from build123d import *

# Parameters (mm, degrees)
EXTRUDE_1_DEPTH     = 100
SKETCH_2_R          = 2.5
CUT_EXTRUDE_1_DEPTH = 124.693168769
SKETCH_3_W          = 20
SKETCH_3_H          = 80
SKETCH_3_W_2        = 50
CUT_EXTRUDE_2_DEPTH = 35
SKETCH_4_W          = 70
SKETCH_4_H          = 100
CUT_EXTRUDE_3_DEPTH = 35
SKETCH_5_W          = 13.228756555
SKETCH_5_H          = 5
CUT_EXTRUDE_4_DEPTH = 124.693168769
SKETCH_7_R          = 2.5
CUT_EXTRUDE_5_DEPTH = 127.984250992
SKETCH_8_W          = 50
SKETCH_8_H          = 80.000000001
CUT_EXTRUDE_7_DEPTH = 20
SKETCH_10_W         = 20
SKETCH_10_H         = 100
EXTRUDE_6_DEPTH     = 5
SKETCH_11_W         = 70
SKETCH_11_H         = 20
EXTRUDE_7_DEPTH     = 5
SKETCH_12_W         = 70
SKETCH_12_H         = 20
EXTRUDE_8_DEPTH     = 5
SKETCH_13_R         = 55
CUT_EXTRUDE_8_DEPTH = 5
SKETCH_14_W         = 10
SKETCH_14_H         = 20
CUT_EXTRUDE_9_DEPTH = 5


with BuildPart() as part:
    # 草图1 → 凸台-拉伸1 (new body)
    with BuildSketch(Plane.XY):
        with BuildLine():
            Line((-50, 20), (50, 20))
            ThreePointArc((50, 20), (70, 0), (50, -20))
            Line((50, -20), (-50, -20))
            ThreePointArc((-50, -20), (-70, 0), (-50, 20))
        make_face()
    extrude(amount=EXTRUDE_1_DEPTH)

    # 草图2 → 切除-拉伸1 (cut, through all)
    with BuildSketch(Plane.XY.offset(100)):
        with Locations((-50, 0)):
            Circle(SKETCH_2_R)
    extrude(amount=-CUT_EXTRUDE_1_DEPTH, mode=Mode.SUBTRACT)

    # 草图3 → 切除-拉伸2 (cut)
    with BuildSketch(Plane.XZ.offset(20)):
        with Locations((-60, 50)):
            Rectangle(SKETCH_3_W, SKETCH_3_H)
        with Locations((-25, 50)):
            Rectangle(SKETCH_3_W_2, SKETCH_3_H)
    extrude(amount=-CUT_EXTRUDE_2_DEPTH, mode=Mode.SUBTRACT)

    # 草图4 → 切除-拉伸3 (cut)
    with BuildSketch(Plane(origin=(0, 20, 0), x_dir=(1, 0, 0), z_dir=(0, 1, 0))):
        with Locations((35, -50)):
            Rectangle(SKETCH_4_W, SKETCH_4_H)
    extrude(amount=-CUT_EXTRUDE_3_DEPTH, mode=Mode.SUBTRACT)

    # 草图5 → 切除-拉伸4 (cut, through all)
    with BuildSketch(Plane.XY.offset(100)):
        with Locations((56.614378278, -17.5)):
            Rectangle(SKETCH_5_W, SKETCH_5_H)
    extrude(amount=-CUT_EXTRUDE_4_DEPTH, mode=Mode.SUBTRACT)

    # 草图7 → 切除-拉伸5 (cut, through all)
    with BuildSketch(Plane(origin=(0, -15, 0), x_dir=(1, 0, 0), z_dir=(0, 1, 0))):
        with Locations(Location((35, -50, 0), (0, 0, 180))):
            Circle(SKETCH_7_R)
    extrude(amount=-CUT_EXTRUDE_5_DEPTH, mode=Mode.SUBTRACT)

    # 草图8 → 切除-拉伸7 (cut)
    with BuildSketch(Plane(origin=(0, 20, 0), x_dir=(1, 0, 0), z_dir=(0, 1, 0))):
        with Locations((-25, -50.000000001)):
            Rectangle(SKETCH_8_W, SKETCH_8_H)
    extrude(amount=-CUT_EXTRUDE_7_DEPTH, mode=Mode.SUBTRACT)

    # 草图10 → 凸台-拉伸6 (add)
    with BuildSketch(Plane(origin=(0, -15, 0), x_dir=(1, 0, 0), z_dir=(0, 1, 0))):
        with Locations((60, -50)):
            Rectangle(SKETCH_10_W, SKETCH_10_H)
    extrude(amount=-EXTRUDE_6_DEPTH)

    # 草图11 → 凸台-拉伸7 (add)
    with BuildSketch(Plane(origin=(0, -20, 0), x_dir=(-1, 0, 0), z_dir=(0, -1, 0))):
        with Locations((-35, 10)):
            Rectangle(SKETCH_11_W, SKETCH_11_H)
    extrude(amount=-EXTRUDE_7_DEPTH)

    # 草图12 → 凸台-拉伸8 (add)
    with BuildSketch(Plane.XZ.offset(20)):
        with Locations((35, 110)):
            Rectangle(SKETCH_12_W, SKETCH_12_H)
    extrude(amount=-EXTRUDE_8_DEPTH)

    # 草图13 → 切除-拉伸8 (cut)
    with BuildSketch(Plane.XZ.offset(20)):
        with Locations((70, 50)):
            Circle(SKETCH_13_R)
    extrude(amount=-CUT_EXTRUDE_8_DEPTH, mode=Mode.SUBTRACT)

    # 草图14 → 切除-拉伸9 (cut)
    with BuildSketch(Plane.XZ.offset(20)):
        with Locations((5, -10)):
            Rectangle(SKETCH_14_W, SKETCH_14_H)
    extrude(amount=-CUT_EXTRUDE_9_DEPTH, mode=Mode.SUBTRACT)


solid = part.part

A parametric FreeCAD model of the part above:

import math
import FreeCAD as App
import Part
import Sketcher
Q = App.Units.Quantity

doc = App.newDocument("Part")
params = doc.addObject("Spreadsheet::Sheet", "Params")
for row, (alias, value) in enumerate([
    ("sketch1_radius", "20 mm"),
    ("sketch1_width", "100 mm"),
    ("pad1_length", "100 mm"),
    ("sketch2_diameter", "5 mm"),
    ("sketch3_width", "70 mm"),
    ("sketch3_height", "80 mm"),
    ("pocket2_length", "35 mm"),
    ("sketch4_width", "70 mm"),
    ("sketch4_height", "100 mm"),
    ("pocket3_length", "35 mm"),
    ("sketch5_height", "5 mm"),
    ("sketch6_diameter", "5 mm"),
    ("sketch7_width", "50 mm"),
    ("sketch7_height", "80 mm"),
    ("pocket6_length", "20 mm"),
    ("sketch8_width", "20 mm"),
    ("sketch8_height", "100 mm"),
    ("pad2_length", "5 mm"),
    ("sketch9_width", "70 mm"),
    ("sketch9_height", "20 mm"),
    ("pad3_length", "5 mm"),
    ("sketch10_width", "70 mm"),
    ("sketch10_height", "20 mm"),
    ("pad4_length", "5 mm"),
    ("sketch11_diameter", "110 mm"),
    ("pocket7_length", "5 mm"),
    ("sketch12_width", "10 mm"),
    ("sketch12_height", "20 mm"),
    ("pocket8_length", "5 mm"),
], start=1):
    params.set(f"A{row}", alias)
    params.set(f"B{row}", "=" + value)
    params.setAlias(f"B{row}", alias)

body = doc.addObject("PartDesign::Body", "Body")

sketch1 = body.newObject("Sketcher::SketchObject", "Sketch")
sketch1.AttachmentSupport = (doc.getObject("XY_Plane"), [""])
sketch1.MapMode = "FlatFace"
sketch1.addGeometry([
    Part.LineSegment(App.Vector(50, 20, 0), App.Vector(-50, 20, 0)),
    Part.ArcOfCircle(Part.Circle(App.Vector(-50, 0, 0), App.Vector(0, 0, 1), 20), math.radians(90), math.radians(270)),
    Part.LineSegment(App.Vector(-50, -20, 0), App.Vector(50, -20, 0)),
    Part.ArcOfCircle(Part.Circle(App.Vector(50, 0, 0), App.Vector(0, 0, 1), 20), math.radians(-90), math.radians(90)),
], False)
sketch1.addConstraint([
    Sketcher.Constraint("Tangent", 0, 2, 1, 1),
    Sketcher.Constraint("Tangent", 1, 2, 2, 1),
    Sketcher.Constraint("Tangent", 2, 2, 3, 1),
    Sketcher.Constraint("Tangent", 3, 2, 0, 1),
    Sketcher.Constraint("Horizontal", 0),
    Sketcher.Constraint("Horizontal", 2),
    Sketcher.Constraint("Symmetric", 1, 3, 3, 3, -1, 1),
    Sketcher.Constraint("Radius", 1, Q("20 mm")),
    Sketcher.Constraint("DistanceX", 0, 2, 0, 1, Q("100 mm")),
])
sketch1.setExpression("Constraints[7]", "Params.sketch1_radius")
sketch1.setExpression("Constraints[8]", "Params.sketch1_width")
pad1 = body.newObject("PartDesign::Pad", "Pad")
pad1.Profile = sketch1
pad1.setExpression("Length", "Params.pad1_length")

sketch2 = body.newObject("Sketcher::SketchObject", "Sketch001")
sketch2.AttachmentSupport = (doc.getObject("XY_Plane"), [""])
sketch2.MapMode = "FlatFace"
sketch2.AttachmentOffset = App.Placement(App.Vector(0, 0, 100), App.Rotation())
sketch2.addGeometry(Part.Circle(App.Vector(-50, 0, 0), App.Vector(0, 0, 1), 2.5), False)
sketch2.addConstraint([
    Sketcher.Constraint("PointOnObject", 0, 3, -1),
    Sketcher.Constraint("Diameter", 0, Q("5 mm")),
    Sketcher.Constraint("DistanceX", 0, 3, -1, 1, Q("50 mm")),
])
sketch2.setExpression("Constraints[1]", "Params.sketch2_diameter")
pocket1 = body.newObject("PartDesign::Pocket", "Pocket")
pocket1.Profile = sketch2
pocket1.Type = "ThroughAll"

sketch3 = body.newObject("Sketcher::SketchObject", "Sketch002")
sketch3.AttachmentSupport = (doc.getObject("XZ_Plane"), [""])
sketch3.MapMode = "FlatFace"
sketch3.AttachmentOffset = App.Placement(App.Vector(0, 0, 20), App.Rotation())
sketch3.addGeometry([
    Part.LineSegment(App.Vector(-70, 90, 0), App.Vector(-70, 10, 0)),
    Part.LineSegment(App.Vector(-70, 10, 0), App.Vector(0, 10, 0)),
    Part.LineSegment(App.Vector(0, 10, 0), App.Vector(0, 90, 0)),
    Part.LineSegment(App.Vector(0, 90, 0), App.Vector(-70, 90, 0)),
], False)
sketch3.addConstraint([
    Sketcher.Constraint("Coincident", 0, 2, 1, 1),
    Sketcher.Constraint("Coincident", 1, 2, 2, 1),
    Sketcher.Constraint("Coincident", 2, 2, 3, 1),
    Sketcher.Constraint("Coincident", 3, 2, 0, 1),
    Sketcher.Constraint("Vertical", 0),
    Sketcher.Constraint("Horizontal", 1),
    Sketcher.Constraint("Vertical", 2),
    Sketcher.Constraint("Horizontal", 3),
    Sketcher.Constraint("PointOnObject", 1, 2, -2),
    Sketcher.Constraint("DistanceX", 1, 1, 1, 2, Q("70 mm")),
    Sketcher.Constraint("DistanceY", 0, 2, 0, 1, Q("80 mm")),
    Sketcher.Constraint("DistanceY", -1, 1, 0, 2, Q("10 mm")),
])
sketch3.setExpression("Constraints[9]", "Params.sketch3_width")
sketch3.setExpression("Constraints[10]", "Params.sketch3_height")
pocket2 = body.newObject("PartDesign::Pocket", "Pocket001")
pocket2.Profile = sketch3
pocket2.setExpression("Length", "Params.pocket2_length")

sketch4 = body.newObject("Sketcher::SketchObject", "Sketch003")
sketch4.AttachmentSupport = (doc.getObject("XZ_Plane"), [""])
sketch4.MapMode = "FlatFace"
sketch4.AttachmentOffset = App.Placement(App.Vector(0, 0, -20), App.Rotation())
sketch4.addGeometry([
    Part.LineSegment(App.Vector(0, 0, 0), App.Vector(0, 100, 0)),
    Part.LineSegment(App.Vector(0, 100, 0), App.Vector(70, 100, 0)),
    Part.LineSegment(App.Vector(70, 100, 0), App.Vector(70, 0, 0)),
    Part.LineSegment(App.Vector(70, 0, 0), App.Vector(0, 0, 0)),
], False)
sketch4.addConstraint([
    Sketcher.Constraint("Coincident", 0, 2, 1, 1),
    Sketcher.Constraint("Coincident", 1, 2, 2, 1),
    Sketcher.Constraint("Coincident", 2, 2, 3, 1),
    Sketcher.Constraint("Coincident", 3, 2, 0, 1),
    Sketcher.Constraint("Vertical", 0),
    Sketcher.Constraint("Horizontal", 1),
    Sketcher.Constraint("Vertical", 2),
    Sketcher.Constraint("Horizontal", 3),
    Sketcher.Constraint("Coincident", 3, 2, -1, 1),
    Sketcher.Constraint("DistanceX", 1, 1, 1, 2, Q("70 mm")),
    Sketcher.Constraint("DistanceY", 0, 1, 0, 2, Q("100 mm")),
])
sketch4.setExpression("Constraints[9]", "Params.sketch4_width")
sketch4.setExpression("Constraints[10]", "Params.sketch4_height")
pocket3 = body.newObject("PartDesign::Pocket", "Pocket002")
pocket3.Profile = sketch4
pocket3.setExpression("Length", "Params.pocket3_length")
pocket3.Reversed = True

sketch5 = body.newObject("Sketcher::SketchObject", "Sketch004")
sketch5.AttachmentSupport = (doc.getObject("XY_Plane"), [""])
sketch5.MapMode = "FlatFace"
sketch5.AttachmentOffset = App.Placement(App.Vector(0, 0, 100), App.Rotation())
sketch5.addGeometry([
    Part.LineSegment(App.Vector(50, -15, 0), App.Vector(50, -20, 0)),
    Part.LineSegment(App.Vector(50, -20, 0), App.Vector(63, -20, 0)),
    Part.LineSegment(App.Vector(63, -20, 0), App.Vector(63, -15, 0)),
    Part.LineSegment(App.Vector(63, -15, 0), App.Vector(50, -15, 0)),
], False)
sketch5.addConstraint([
    Sketcher.Constraint("Coincident", 0, 2, 1, 1),
    Sketcher.Constraint("Coincident", 1, 2, 2, 1),
    Sketcher.Constraint("Coincident", 2, 2, 3, 1),
    Sketcher.Constraint("Coincident", 3, 2, 0, 1),
    Sketcher.Constraint("Vertical", 0),
    Sketcher.Constraint("Horizontal", 1),
    Sketcher.Constraint("Vertical", 2),
    Sketcher.Constraint("Horizontal", 3),
    Sketcher.Constraint("DistanceY", 0, 2, 0, 1, Q("5 mm")),
    Sketcher.Constraint("DistanceX", -1, 1, 0, 2, Q("50 mm")),
    Sketcher.Constraint("DistanceY", 0, 2, -1, 1, Q("20 mm")),
    Sketcher.Constraint("DistanceX", 1, 1, 1, 2, Q("13.228757 mm")),
])
sketch5.setExpression("Constraints[8]", "Params.sketch5_height")
pocket4 = body.newObject("PartDesign::Pocket", "Pocket003")
pocket4.Profile = sketch5
pocket4.Type = "ThroughAll"

sketch6 = body.newObject("Sketcher::SketchObject", "Sketch005")
sketch6.AttachmentSupport = (doc.getObject("XZ_Plane"), [""])
sketch6.MapMode = "FlatFace"
sketch6.AttachmentOffset = App.Placement(App.Vector(0, 0, 15), App.Rotation())
sketch6.addGeometry(Part.Circle(App.Vector(35, 50, 0), App.Vector(0, 0, 1), 2.5), False)
sketch6.addConstraint([
    Sketcher.Constraint("Diameter", 0, Q("5 mm")),
    Sketcher.Constraint("DistanceX", -1, 1, 0, 3, Q("35 mm")),
    Sketcher.Constraint("DistanceY", -1, 1, 0, 3, Q("50 mm")),
])
sketch6.setExpression("Constraints[0]", "Params.sketch6_diameter")
pocket5 = body.newObject("PartDesign::Pocket", "Pocket004")
pocket5.Profile = sketch6
pocket5.Type = "ThroughAll"
pocket5.Reversed = True

sketch7 = body.newObject("Sketcher::SketchObject", "Sketch006")
sketch7.AttachmentSupport = (doc.getObject("XZ_Plane"), [""])
sketch7.MapMode = "FlatFace"
sketch7.AttachmentOffset = App.Placement(App.Vector(0, 0, -20), App.Rotation())
sketch7.addGeometry([
    Part.LineSegment(App.Vector(-50, 10, 0), App.Vector(-50, 90, 0)),
    Part.LineSegment(App.Vector(-50, 90, 0), App.Vector(0, 90, 0)),
    Part.LineSegment(App.Vector(0, 90, 0), App.Vector(0, 10, 0)),
    Part.LineSegment(App.Vector(0, 10, 0), App.Vector(-50, 10, 0)),
], False)
sketch7.addConstraint([
    Sketcher.Constraint("Coincident", 0, 2, 1, 1),
    Sketcher.Constraint("Coincident", 1, 2, 2, 1),
    Sketcher.Constraint("Coincident", 2, 2, 3, 1),
    Sketcher.Constraint("Coincident", 3, 2, 0, 1),
    Sketcher.Constraint("Vertical", 0),
    Sketcher.Constraint("Horizontal", 1),
    Sketcher.Constraint("Vertical", 2),
    Sketcher.Constraint("Horizontal", 3),
    Sketcher.Constraint("PointOnObject", 1, 2, -2),
    Sketcher.Constraint("DistanceX", 1, 1, 1, 2, Q("50 mm")),
    Sketcher.Constraint("DistanceY", 0, 1, 0, 2, Q("80 mm")),
    Sketcher.Constraint("DistanceY", -1, 1, 0, 2, Q("90 mm")),
])
sketch7.setExpression("Constraints[9]", "Params.sketch7_width")
sketch7.setExpression("Constraints[10]", "Params.sketch7_height")
pocket6 = body.newObject("PartDesign::Pocket", "Pocket005")
pocket6.Profile = sketch7
pocket6.setExpression("Length", "Params.pocket6_length")
pocket6.Reversed = True

sketch8 = body.newObject("Sketcher::SketchObject", "Sketch007")
sketch8.AttachmentSupport = (doc.getObject("XZ_Plane"), [""])
sketch8.MapMode = "FlatFace"
sketch8.AttachmentOffset = App.Placement(App.Vector(0, 0, 15), App.Rotation())
sketch8.addGeometry([
    Part.LineSegment(App.Vector(50, 0, 0), App.Vector(50, 100, 0)),
    Part.LineSegment(App.Vector(50, 100, 0), App.Vector(70, 100, 0)),
    Part.LineSegment(App.Vector(70, 100, 0), App.Vector(70, 0, 0)),
    Part.LineSegment(App.Vector(70, 0, 0), App.Vector(50, 0, 0)),
], False)
sketch8.addConstraint([
    Sketcher.Constraint("Coincident", 0, 2, 1, 1),
    Sketcher.Constraint("Coincident", 1, 2, 2, 1),
    Sketcher.Constraint("Coincident", 2, 2, 3, 1),
    Sketcher.Constraint("Coincident", 3, 2, 0, 1),
    Sketcher.Constraint("Vertical", 0),
    Sketcher.Constraint("Horizontal", 1),
    Sketcher.Constraint("Vertical", 2),
    Sketcher.Constraint("Horizontal", 3),
    Sketcher.Constraint("PointOnObject", 2, 2, -1),
    Sketcher.Constraint("DistanceX", 1, 1, 1, 2, Q("20 mm")),
    Sketcher.Constraint("DistanceY", 0, 1, 0, 2, Q("100 mm")),
    Sketcher.Constraint("DistanceX", -1, 1, 0, 2, Q("50 mm")),
])
sketch8.setExpression("Constraints[9]", "Params.sketch8_width")
sketch8.setExpression("Constraints[10]", "Params.sketch8_height")
pad2 = body.newObject("PartDesign::Pad", "Pad001")
pad2.Profile = sketch8
pad2.setExpression("Length", "Params.pad2_length")

sketch9 = body.newObject("Sketcher::SketchObject", "Sketch008")
sketch9.AttachmentSupport = (doc.getObject("XZ_Plane"), [""])
sketch9.MapMode = "FlatFace"
sketch9.AttachmentOffset = App.Placement(App.Vector(0, 0, 20), App.Rotation())
sketch9.addGeometry([
    Part.LineSegment(App.Vector(70, -20, 0), App.Vector(70, 0, 0)),
    Part.LineSegment(App.Vector(70, 0, 0), App.Vector(0, 0, 0)),
    Part.LineSegment(App.Vector(0, 0, 0), App.Vector(0, -20, 0)),
    Part.LineSegment(App.Vector(0, -20, 0), App.Vector(70, -20, 0)),
], False)
sketch9.addConstraint([
    Sketcher.Constraint("Coincident", 0, 2, 1, 1),
    Sketcher.Constraint("Coincident", 1, 2, 2, 1),
    Sketcher.Constraint("Coincident", 2, 2, 3, 1),
    Sketcher.Constraint("Coincident", 3, 2, 0, 1),
    Sketcher.Constraint("Vertical", 0),
    Sketcher.Constraint("Horizontal", 1),
    Sketcher.Constraint("Vertical", 2),
    Sketcher.Constraint("Horizontal", 3),
    Sketcher.Constraint("Coincident", 1, 2, -1, 1),
    Sketcher.Constraint("DistanceX", 1, 2, 1, 1, Q("70 mm")),
    Sketcher.Constraint("DistanceY", 0, 1, 0, 2, Q("20 mm")),
])
sketch9.setExpression("Constraints[9]", "Params.sketch9_width")
sketch9.setExpression("Constraints[10]", "Params.sketch9_height")
pad3 = body.newObject("PartDesign::Pad", "Pad002")
pad3.Profile = sketch9
pad3.setExpression("Length", "Params.pad3_length")
pad3.Reversed = True

sketch10 = body.newObject("Sketcher::SketchObject", "Sketch009")
sketch10.AttachmentSupport = (doc.getObject("XZ_Plane"), [""])
sketch10.MapMode = "FlatFace"
sketch10.AttachmentOffset = App.Placement(App.Vector(0, 0, 20), App.Rotation())
sketch10.addGeometry([
    Part.LineSegment(App.Vector(0, 120, 0), App.Vector(0, 100, 0)),
    Part.LineSegment(App.Vector(0, 100, 0), App.Vector(70, 100, 0)),
    Part.LineSegment(App.Vector(70, 100, 0), App.Vector(70, 120, 0)),
    Part.LineSegment(App.Vector(70, 120, 0), App.Vector(0, 120, 0)),
], False)
sketch10.addConstraint([
    Sketcher.Constraint("Coincident", 0, 2, 1, 1),
    Sketcher.Constraint("Coincident", 1, 2, 2, 1),
    Sketcher.Constraint("Coincident", 2, 2, 3, 1),
    Sketcher.Constraint("Coincident", 3, 2, 0, 1),
    Sketcher.Constraint("Vertical", 0),
    Sketcher.Constraint("Horizontal", 1),
    Sketcher.Constraint("Vertical", 2),
    Sketcher.Constraint("Horizontal", 3),
    Sketcher.Constraint("PointOnObject", 0, 2, -2),
    Sketcher.Constraint("DistanceX", 1, 1, 1, 2, Q("70 mm")),
    Sketcher.Constraint("DistanceY", 0, 2, 0, 1, Q("20 mm")),
    Sketcher.Constraint("DistanceY", -1, 1, 0, 2, Q("100 mm")),
])
sketch10.setExpression("Constraints[9]", "Params.sketch10_width")
sketch10.setExpression("Constraints[10]", "Params.sketch10_height")
pad4 = body.newObject("PartDesign::Pad", "Pad003")
pad4.Profile = sketch10
pad4.setExpression("Length", "Params.pad4_length")
pad4.Reversed = True

sketch11 = body.newObject("Sketcher::SketchObject", "Sketch010")
sketch11.AttachmentSupport = (doc.getObject("XZ_Plane"), [""])
sketch11.MapMode = "FlatFace"
sketch11.AttachmentOffset = App.Placement(App.Vector(0, 0, 20), App.Rotation())
sketch11.addGeometry(Part.Circle(App.Vector(70, 50, 0), App.Vector(0, 0, 1), 55), False)
sketch11.addConstraint([
    Sketcher.Constraint("Diameter", 0, Q("110 mm")),
    Sketcher.Constraint("DistanceX", -1, 1, 0, 3, Q("70 mm")),
    Sketcher.Constraint("DistanceY", -1, 1, 0, 3, Q("50 mm")),
])
sketch11.setExpression("Constraints[0]", "Params.sketch11_diameter")
pocket7 = body.newObject("PartDesign::Pocket", "Pocket006")
pocket7.Profile = sketch11
pocket7.setExpression("Length", "Params.pocket7_length")

sketch12 = body.newObject("Sketcher::SketchObject", "Sketch011")
sketch12.AttachmentSupport = (doc.getObject("XZ_Plane"), [""])
sketch12.MapMode = "FlatFace"
sketch12.AttachmentOffset = App.Placement(App.Vector(0, 0, 20), App.Rotation())
sketch12.addGeometry([
    Part.LineSegment(App.Vector(0, 0, 0), App.Vector(0, -20, 0)),
    Part.LineSegment(App.Vector(0, -20, 0), App.Vector(10, -20, 0)),
    Part.LineSegment(App.Vector(10, -20, 0), App.Vector(10, 0, 0)),
    Part.LineSegment(App.Vector(10, 0, 0), App.Vector(0, 0, 0)),
], False)
sketch12.addConstraint([
    Sketcher.Constraint("Coincident", 0, 2, 1, 1),
    Sketcher.Constraint("Coincident", 1, 2, 2, 1),
    Sketcher.Constraint("Coincident", 2, 2, 3, 1),
    Sketcher.Constraint("Coincident", 3, 2, 0, 1),
    Sketcher.Constraint("Vertical", 0),
    Sketcher.Constraint("Horizontal", 1),
    Sketcher.Constraint("Vertical", 2),
    Sketcher.Constraint("Horizontal", 3),
    Sketcher.Constraint("Coincident", 3, 2, -1, 1),
    Sketcher.Constraint("DistanceX", 1, 1, 1, 2, Q("10 mm")),
    Sketcher.Constraint("DistanceY", 0, 2, 0, 1, Q("20 mm")),
])
sketch12.setExpression("Constraints[9]", "Params.sketch12_width")
sketch12.setExpression("Constraints[10]", "Params.sketch12_height")
pocket8 = body.newObject("PartDesign::Pocket", "Pocket007")
pocket8.Profile = sketch12
pocket8.setExpression("Length", "Params.pocket8_length")

doc.recompute()
